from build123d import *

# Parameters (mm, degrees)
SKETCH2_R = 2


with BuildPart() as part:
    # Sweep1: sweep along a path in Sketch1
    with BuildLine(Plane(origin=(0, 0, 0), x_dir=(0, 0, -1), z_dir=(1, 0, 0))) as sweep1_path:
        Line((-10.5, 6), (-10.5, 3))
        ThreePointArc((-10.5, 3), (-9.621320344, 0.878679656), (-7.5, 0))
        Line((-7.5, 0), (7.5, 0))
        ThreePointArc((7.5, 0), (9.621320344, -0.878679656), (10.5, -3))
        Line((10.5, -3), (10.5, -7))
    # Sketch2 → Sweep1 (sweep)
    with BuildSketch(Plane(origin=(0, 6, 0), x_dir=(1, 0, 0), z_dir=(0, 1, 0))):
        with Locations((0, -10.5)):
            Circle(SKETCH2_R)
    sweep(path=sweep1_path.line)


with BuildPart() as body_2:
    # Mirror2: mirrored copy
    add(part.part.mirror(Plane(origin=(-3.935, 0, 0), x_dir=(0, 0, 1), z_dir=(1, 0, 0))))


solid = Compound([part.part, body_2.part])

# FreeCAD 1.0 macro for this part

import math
import FreeCAD as App
import Part
import Sketcher
Q = App.Units.Quantity

doc = App.newDocument("Part")
body = doc.addObject("PartDesign::Body", "Body")

# Sketch on XZ plane
sketch1 = doc.addObject("Sketcher::SketchObject", "Sketch")
body.addObject(sketch1)
sketch1.AttachmentSupport = (doc.XZ_Plane, [""])
sketch1.MapMode = "FlatFace"
sketch1.AttachmentOffset = App.Placement(App.Vector(0, 0, -6), App.Rotation())
sketch1.addGeometry(Part.Circle(App.Vector(0, 10.5, 0), App.Vector(0, 0, 1), 2), False)
sketch1.addConstraint([
    Sketcher.Constraint("PointOnObject", 0, 3, -2),
    Sketcher.Constraint("Diameter", 0, Q("4 mm")),
    Sketcher.Constraint("DistanceY", -1, 1, 0, 3, Q("10.5 mm")),
])

# Sketch on YZ plane
sketch2 = doc.addObject("Sketcher::SketchObject", "Sketch001")
body.addObject(sketch2)
sketch2.AttachmentSupport = (doc.YZ_Plane, [""])
sketch2.MapMode = "FlatFace"
sketch2.addGeometry([
    Part.LineSegment(App.Vector(6, 10.5, 0), App.Vector(3, 10.5, 0)),  # 0
    Part.ArcOfCircle(Part.Circle(App.Vector(3, 7.5, 0), App.Vector(0, 0, 1), 3), math.radians(90), math.radians(180)),  # 1
    Part.LineSegment(App.Vector(0, 7.5, 0), App.Vector(0, -7.5, 0)),  # 2
    Part.ArcOfCircle(Part.Circle(App.Vector(-3, -7.5, 0), App.Vector(0, 0, 1), 3), math.radians(-90), math.radians(0)),  # 3
    Part.LineSegment(App.Vector(-3, -10.5, 0), App.Vector(-7, -10.5, 0)),  # 4
], False)
sketch2.addConstraint([
    Sketcher.Constraint("Tangent", 0, 2, 1, 1),
    Sketcher.Constraint("Tangent", 1, 2, 2, 1),
    Sketcher.Constraint("Tangent", 2, 2, 3, 2),
    Sketcher.Constraint("Tangent", 3, 1, 4, 1),
    Sketcher.Constraint("Horizontal", 0),
    Sketcher.Constraint("Vertical", 2),
    Sketcher.Constraint("Horizontal", 4),
    Sketcher.Constraint("Equal", 1, 3),
    Sketcher.Constraint("Symmetric", 1, 3, 3, 3, -1, 1),
    Sketcher.Constraint("Radius", 1, Q("3 mm")),
    Sketcher.Constraint("DistanceX", 0, 2, 0, 1, Q("3 mm")),
    Sketcher.Constraint("DistanceX", 4, 2, 4, 1, Q("4 mm")),
    Sketcher.Constraint("DistanceY", 2, 2, 2, 1, Q("15 mm")),
])
doc.recompute()

additivepipe = doc.addObject("PartDesign::AdditivePipe", "AdditivePipe")
body.addObject(additivepipe)
additivepipe.Profile = sketch1
additivepipe.Spine = (sketch2, ["Edge1", "Edge2", "Edge3", "Edge4", "Edge5"])
body2 = doc.addObject("PartDesign::Body", "Body001")
doc.recompute()

mirroring = doc.addObject("Part::Mirroring", "Mirroring")
mirroring.Source = body
mirroring.Base = App.Vector(-3.935, 0, 0)
mirroring.Normal = App.Vector(1, 0, 0)
body2.BaseFeature = mirroring
doc.recompute()
mirroring.Visibility = False

doc.recompute()
